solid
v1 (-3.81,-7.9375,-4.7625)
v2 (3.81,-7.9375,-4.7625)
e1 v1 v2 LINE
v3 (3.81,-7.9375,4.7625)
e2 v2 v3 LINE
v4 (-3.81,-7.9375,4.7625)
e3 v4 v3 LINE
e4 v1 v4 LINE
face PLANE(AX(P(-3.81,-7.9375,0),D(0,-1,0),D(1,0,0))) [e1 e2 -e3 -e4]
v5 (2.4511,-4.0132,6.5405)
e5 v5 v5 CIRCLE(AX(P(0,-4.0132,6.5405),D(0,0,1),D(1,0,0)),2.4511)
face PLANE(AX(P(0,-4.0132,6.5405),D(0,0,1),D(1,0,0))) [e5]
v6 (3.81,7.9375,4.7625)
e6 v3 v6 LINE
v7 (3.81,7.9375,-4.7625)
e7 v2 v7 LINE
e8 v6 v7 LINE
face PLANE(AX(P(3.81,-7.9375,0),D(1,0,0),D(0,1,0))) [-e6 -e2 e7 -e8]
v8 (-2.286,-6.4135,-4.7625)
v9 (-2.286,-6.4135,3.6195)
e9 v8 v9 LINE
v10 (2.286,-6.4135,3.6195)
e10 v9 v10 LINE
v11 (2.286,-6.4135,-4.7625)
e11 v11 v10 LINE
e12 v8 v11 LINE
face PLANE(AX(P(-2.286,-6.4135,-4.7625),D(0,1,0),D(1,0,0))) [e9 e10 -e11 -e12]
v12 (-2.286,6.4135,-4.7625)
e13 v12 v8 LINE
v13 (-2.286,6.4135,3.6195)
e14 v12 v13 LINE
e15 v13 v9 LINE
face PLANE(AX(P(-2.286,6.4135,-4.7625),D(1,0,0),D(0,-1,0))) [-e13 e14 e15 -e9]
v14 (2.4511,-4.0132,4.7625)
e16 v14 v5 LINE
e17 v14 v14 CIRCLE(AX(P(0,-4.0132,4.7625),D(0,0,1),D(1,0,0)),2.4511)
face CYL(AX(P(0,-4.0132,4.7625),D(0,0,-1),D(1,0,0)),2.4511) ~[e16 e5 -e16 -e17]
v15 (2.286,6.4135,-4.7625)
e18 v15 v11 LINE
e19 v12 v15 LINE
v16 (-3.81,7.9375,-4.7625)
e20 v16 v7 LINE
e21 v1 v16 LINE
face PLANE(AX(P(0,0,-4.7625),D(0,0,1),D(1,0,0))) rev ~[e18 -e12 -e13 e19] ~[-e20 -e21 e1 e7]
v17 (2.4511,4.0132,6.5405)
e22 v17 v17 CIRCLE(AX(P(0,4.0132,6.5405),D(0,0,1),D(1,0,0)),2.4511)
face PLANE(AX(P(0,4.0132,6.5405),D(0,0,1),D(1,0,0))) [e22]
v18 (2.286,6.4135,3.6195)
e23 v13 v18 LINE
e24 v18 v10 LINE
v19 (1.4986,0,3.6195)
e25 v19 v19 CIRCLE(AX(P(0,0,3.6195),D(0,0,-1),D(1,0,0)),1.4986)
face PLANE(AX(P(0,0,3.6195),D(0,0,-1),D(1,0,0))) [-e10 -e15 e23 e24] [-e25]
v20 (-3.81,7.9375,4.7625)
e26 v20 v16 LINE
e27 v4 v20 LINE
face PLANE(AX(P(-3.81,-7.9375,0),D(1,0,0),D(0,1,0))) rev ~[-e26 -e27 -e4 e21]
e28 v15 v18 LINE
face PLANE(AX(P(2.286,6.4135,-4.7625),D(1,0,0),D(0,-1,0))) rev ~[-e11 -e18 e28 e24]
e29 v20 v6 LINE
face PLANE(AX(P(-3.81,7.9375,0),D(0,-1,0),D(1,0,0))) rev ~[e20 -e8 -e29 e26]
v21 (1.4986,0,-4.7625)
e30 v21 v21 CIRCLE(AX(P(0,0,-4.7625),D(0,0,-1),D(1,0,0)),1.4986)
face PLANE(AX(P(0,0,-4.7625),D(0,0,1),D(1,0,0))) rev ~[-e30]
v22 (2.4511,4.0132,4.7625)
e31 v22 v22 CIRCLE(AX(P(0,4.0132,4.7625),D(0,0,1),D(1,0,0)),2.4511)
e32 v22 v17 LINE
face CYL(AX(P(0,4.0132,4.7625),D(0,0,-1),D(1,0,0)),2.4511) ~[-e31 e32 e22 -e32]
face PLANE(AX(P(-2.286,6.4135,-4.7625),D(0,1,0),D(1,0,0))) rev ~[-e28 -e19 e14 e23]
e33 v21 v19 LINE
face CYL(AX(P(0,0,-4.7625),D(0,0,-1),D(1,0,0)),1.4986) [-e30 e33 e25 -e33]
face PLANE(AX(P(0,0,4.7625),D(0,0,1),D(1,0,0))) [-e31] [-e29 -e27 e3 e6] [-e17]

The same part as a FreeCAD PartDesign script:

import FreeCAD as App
import Part
import Sketcher
Q = App.Units.Quantity


def add_polygon(sketch, points):
    """Adds a closed chain of lines whose ends are joined by coincident constraints."""
    first, n = sketch.GeometryCount, len(points)
    for a, b in zip(points, points[1:] + points[:1]):
        sketch.addGeometry(Part.LineSegment(App.Vector(*a, 0), App.Vector(*b, 0)), False)
    for i in range(n):
        sketch.addConstraint(Sketcher.Constraint("Coincident", first + i, 2, first + (i + 1) % n, 1))

doc = App.newDocument("Part")
params = doc.addObject("Spreadsheet::Sheet", "Params")
for row, (alias, value) in enumerate([
    ("sketch1_width", "0.3 in"),
    ("sketch1_height", "0.625 in"),
    ("pad1_length", "0.375 in"),
    ("sketch2_diameter", "0.193 in"),
    ("pad2_length", "0.07 in"),
    ("sketch3_diameter", "0.118 in"),
    ("sketch3_width", "0.18 in"),
    ("sketch3_height", "0.505 in"),
    ("pocket1_length", "0.33 in"),
], start=1):
    params.set(f"A{row}", alias)
    params.set(f"B{row}", "=" + value)
    params.setAlias(f"B{row}", alias)

body = doc.addObject("PartDesign::Body", "Body")

sketch1 = body.newObject("Sketcher::SketchObject", "Sketch")
sketch1.AttachmentSupport = (doc.getObject("XY_Plane"), [""])
sketch1.MapMode = "FlatFace"
add_polygon(sketch1, [(-4, 8), (-4, -8), (4, -8), (4, 8)])
sketch1.addConstraint(Sketcher.Constraint("Vertical", 0))
sketch1.addConstraint(Sketcher.Constraint("Horizontal", 1))
sketch1.addConstraint(Sketcher.Constraint("Vertical", 2))
sketch1.addConstraint(Sketcher.Constraint("Horizontal", 3))
sketch1.addConstraint(Sketcher.Constraint("Symmetric", 0, 2, 2, 2, -1, 1))
sketch1.addConstraint(Sketcher.Constraint("DistanceX", 1, 1, 1, 2, Q("0.3 in")))
sketch1.addConstraint(Sketcher.Constraint("DistanceY", 0, 2, 0, 1, Q("0.625 in")))
sketch1.setExpression("Constraints[9]", "Params.sketch1_width")
sketch1.setExpression("Constraints[10]", "Params.sketch1_height")
pad1 = body.newObject("PartDesign::Pad", "Pad")
pad1.Profile = sketch1
pad1.setExpression("Length", "Params.pad1_length")
pad1.Midplane = True

sketch2 = body.newObject("Sketcher::SketchObject", "Sketch001")
sketch2.AttachmentSupport = (doc.getObject("XY_Plane"), [""])
sketch2.MapMode = "FlatFace"
sketch2.AttachmentOffset = App.Placement(App.Vector(0, 0, 0.1875 * 25.4), App.Rotation())
sketch2.addGeometry(Part.Circle(App.Vector(0, 4, 0), App.Vector(0, 0, 1), 2.5), False)
sketch2.addGeometry(Part.Circle(App.Vector(0, -4, 0), App.Vector(0, 0, 1), 2.5), False)
sketch2.addConstraint(Sketcher.Constraint("Equal", 0, 1))
sketch2.addConstraint(Sketcher.Constraint("Symmetric", 0, 3, 1, 3, -1, 1))
sketch2.addConstraint(Sketcher.Constraint("PointOnObject", 0, 3, -2))
sketch2.addConstraint(Sketcher.Constraint("Diameter", 0, Q("0.193 in")))
sketch2.addConstraint(Sketcher.Constraint("DistanceY", -1, 1, 0, 3, Q("0.158 in")))
sketch2.setExpression("Constraints[3]", "Params.sketch2_diameter")
pad2 = body.newObject("PartDesign::Pad", "Pad001")
pad2.Profile = sketch2
pad2.setExpression("Length", "Params.pad2_length")

sketch3 = body.newObject("Sketcher::SketchObject", "Sketch002")
sketch3.AttachmentSupport = (doc.getObject("XY_Plane"), [""])
sketch3.MapMode = "FlatFace"
sketch3.AttachmentOffset = App.Placement(App.Vector(0, 0, -0.1875 * 25.4), App.Rotation())
add_polygon(sketch3, [(-2.3, -6.4), (-2.3, 6.4), (2.3, 6.4), (2.3, -6.4)])
sketch3.addGeometry(Part.Circle(App.Vector(0, 0, 0), App.Vector(0, 0, 1), 1.5), False)
sketch3.addConstraint(Sketcher.Constraint("Vertical", 0))
sketch3.addConstraint(Sketcher.Constraint("Horizontal", 1))
sketch3.addConstraint(Sketcher.Constraint("Vertical", 2))
sketch3.addConstraint(Sketcher.Constraint("Horizontal", 3))
sketch3.addConstraint(Sketcher.Constraint("Coincident", 4, 3, -1, 1))
sketch3.addConstraint(Sketcher.Constraint("Symmetric", 0, 2, 2, 2, -1, 1))
sketch3.addConstraint(Sketcher.Constraint("Diameter", 4, Q("0.118 in")))
sketch3.addConstraint(Sketcher.Constraint("DistanceX", 1, 1, 1, 2, Q("0.18 in")))
sketch3.addConstraint(Sketcher.Constraint("DistanceY", 0, 1, 0, 2, Q("0.505 in")))
sketch3.setExpression("Constraints[10]", "Params.sketch3_diameter")
sketch3.setExpression("Constraints[11]", "Params.sketch3_width")
sketch3.setExpression("Constraints[12]", "Params.sketch3_height")
pocket1 = body.newObject("PartDesign::Pocket", "Pocket")
pocket1.Profile = sketch3
pocket1.setExpression("Length", "Params.pocket1_length")
pocket1.Reversed = True

doc.recompute()
